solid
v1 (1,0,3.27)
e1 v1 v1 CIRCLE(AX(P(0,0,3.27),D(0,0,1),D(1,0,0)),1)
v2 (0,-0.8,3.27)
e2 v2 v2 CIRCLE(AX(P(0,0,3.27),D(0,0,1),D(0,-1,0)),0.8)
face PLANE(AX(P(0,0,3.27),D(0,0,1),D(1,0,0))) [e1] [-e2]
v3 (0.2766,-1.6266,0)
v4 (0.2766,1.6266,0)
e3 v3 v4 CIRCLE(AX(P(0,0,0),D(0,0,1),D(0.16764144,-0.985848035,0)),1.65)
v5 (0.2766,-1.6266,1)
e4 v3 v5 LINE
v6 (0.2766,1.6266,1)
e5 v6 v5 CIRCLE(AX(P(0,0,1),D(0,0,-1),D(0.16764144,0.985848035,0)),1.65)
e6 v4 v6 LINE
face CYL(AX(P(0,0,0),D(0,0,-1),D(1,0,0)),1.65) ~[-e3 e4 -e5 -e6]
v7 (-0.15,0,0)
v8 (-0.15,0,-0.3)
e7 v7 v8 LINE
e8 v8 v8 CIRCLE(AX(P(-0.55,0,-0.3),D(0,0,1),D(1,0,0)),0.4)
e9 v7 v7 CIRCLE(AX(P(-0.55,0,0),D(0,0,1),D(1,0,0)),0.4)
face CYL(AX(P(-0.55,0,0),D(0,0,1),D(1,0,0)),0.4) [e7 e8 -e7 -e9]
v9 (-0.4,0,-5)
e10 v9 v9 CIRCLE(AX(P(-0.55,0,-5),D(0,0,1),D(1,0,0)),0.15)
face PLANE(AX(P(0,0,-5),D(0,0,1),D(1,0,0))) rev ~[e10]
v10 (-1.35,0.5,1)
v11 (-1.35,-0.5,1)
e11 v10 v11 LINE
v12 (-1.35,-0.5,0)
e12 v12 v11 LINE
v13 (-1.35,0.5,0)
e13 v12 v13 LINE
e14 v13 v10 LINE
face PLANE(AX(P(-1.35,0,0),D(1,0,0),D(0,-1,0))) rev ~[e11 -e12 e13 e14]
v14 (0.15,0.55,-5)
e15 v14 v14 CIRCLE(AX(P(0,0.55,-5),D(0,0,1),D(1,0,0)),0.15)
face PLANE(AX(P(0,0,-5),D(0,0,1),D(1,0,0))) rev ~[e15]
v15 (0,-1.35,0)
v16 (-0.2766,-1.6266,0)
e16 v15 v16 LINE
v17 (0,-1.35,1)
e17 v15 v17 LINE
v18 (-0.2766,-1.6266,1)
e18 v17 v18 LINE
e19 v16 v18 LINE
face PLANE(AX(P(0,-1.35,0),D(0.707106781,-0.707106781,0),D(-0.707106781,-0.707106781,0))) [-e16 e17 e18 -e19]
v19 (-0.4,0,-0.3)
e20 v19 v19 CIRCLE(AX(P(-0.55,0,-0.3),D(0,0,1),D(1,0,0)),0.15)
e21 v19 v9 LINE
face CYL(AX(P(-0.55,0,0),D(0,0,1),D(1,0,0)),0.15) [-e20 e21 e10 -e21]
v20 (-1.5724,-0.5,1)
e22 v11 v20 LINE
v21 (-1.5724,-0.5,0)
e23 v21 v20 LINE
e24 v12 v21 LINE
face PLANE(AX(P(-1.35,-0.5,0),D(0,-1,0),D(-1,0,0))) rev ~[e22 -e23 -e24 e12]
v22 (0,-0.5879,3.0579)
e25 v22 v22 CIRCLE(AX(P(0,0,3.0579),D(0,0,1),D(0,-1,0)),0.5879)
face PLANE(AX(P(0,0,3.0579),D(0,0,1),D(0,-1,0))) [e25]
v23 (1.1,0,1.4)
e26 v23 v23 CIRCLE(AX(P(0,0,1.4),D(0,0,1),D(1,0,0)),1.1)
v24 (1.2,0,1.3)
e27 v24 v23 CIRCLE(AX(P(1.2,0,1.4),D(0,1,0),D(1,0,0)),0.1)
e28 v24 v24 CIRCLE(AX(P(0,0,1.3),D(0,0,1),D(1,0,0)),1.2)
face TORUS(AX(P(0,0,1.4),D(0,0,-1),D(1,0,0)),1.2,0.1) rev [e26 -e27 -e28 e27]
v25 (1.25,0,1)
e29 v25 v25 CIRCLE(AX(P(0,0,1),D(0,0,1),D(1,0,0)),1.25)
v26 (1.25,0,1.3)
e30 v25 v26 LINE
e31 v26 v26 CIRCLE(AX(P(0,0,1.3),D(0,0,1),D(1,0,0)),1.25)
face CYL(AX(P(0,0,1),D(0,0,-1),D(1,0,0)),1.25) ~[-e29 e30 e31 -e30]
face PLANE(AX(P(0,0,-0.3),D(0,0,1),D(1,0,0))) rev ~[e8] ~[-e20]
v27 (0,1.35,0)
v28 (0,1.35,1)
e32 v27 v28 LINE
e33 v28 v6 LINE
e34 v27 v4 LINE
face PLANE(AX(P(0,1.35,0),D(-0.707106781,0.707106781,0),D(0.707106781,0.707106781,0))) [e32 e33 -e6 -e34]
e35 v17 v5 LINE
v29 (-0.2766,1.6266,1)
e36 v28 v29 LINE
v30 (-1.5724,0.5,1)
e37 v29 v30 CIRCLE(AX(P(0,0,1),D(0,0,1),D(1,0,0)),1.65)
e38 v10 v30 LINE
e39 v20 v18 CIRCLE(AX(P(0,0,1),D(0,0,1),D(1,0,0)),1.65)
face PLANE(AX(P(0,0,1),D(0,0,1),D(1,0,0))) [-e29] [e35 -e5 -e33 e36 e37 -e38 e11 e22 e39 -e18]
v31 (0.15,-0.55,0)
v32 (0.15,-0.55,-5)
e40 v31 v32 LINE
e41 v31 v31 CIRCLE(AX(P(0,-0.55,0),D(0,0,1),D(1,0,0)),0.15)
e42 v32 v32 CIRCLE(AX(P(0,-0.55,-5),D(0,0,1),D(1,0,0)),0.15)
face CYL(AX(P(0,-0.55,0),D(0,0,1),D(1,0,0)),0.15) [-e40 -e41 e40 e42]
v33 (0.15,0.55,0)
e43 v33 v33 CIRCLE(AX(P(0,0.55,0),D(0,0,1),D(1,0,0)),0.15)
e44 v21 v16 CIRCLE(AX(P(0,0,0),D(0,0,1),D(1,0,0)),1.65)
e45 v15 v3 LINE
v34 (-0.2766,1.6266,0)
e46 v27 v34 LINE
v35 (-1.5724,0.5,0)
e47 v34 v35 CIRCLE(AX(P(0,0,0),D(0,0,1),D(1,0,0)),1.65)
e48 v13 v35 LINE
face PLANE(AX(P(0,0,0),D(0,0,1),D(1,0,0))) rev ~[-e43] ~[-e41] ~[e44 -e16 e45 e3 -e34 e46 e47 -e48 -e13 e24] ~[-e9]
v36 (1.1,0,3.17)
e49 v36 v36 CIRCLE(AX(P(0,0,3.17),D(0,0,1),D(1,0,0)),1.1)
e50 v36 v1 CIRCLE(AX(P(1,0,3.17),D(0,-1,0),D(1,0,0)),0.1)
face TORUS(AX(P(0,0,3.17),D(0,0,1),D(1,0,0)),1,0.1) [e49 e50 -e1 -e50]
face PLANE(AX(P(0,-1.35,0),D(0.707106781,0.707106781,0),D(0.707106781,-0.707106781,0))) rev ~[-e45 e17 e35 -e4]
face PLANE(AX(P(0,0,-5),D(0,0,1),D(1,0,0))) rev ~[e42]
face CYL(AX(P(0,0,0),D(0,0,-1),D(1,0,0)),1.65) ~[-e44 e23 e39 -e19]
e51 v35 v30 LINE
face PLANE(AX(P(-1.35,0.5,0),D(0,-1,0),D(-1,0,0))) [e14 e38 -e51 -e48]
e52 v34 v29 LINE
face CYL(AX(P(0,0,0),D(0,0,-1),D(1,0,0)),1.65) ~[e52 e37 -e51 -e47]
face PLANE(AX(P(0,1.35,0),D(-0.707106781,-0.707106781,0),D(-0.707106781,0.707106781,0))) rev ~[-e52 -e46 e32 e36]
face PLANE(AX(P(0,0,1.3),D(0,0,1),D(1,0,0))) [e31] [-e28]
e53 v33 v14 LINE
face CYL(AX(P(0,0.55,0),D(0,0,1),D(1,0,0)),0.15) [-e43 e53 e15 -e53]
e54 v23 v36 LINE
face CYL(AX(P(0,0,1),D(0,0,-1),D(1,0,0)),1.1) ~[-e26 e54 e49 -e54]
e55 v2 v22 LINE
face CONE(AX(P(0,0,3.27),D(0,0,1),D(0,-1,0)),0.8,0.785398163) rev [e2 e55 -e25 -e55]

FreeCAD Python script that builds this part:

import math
import FreeCAD as App
import Part
import Sketcher
Q = App.Units.Quantity


def edges_at(feature, points):
    """Names of the edges that pass closest to the given points."""
    edges = feature.Shape.Edges
    near = lambda p: min(range(len(edges)), key=lambda i: edges[i].distToShape(Part.Vertex(*p))[0])
    return sorted({f"Edge{near(p) + 1}" for p in points})


def add_polygon(sketch, points):
    """Adds a closed chain of lines whose ends are joined by coincident constraints."""
    first, n = sketch.GeometryCount, len(points)
    for a, b in zip(points, points[1:] + points[:1]):
        sketch.addGeometry(Part.LineSegment(App.Vector(*a, 0), App.Vector(*b, 0)), False)
    for i in range(n):
        sketch.addConstraint(Sketcher.Constraint("Coincident", first + i, 2, first + (i + 1) % n, 1))

doc = App.newDocument("Part")
body = doc.addObject("PartDesign::Body", "Body")

sketch1 = body.newObject("Sketcher::SketchObject", "Sketch")
sketch1.AttachmentSupport = (doc.getObject("XY_Plane"), [""])
sketch1.MapMode = "FlatFace"
sketch1.addGeometry([
    Part.ArcOfCircle(Part.Circle(App.Vector(0, 0, 0), App.Vector(0, 0, 1), 1.65), math.radians(-80.349284), math.radians(80.349284)),
    Part.LineSegment(App.Vector(0.2766, 1.6266, 0), App.Vector(0, 1.35, 0)),
    Part.LineSegment(App.Vector(0, 1.35, 0), App.Vector(-0.2766, 1.6266, 0)),
    Part.ArcOfCircle(Part.Circle(App.Vector(0, 0, 0), App.Vector(0, 0, 1), 1.65), math.radians(99.650716), math.radians(162.360104)),
    Part.LineSegment(App.Vector(-1.5724, 0.5, 0), App.Vector(-1.35, 0.5, 0)),
    Part.LineSegment(App.Vector(-1.35, 0.5, 0), App.Vector(-1.35, -0.5, 0)),
    Part.LineSegment(App.Vector(-1.35, -0.5, 0), App.Vector(-1.5724, -0.5, 0)),
    Part.ArcOfCircle(Part.Circle(App.Vector(0, 0, 0), App.Vector(0, 0, 1), 1.65), math.radians(-162.360104), math.radians(-99.650716)),
    Part.LineSegment(App.Vector(-0.2766, -1.6266, 0), App.Vector(0, -1.35, 0)),
    Part.LineSegment(App.Vector(0, -1.35, 0), App.Vector(0.2766, -1.6266, 0)),
], False)
sketch1.addConstraint([
    Sketcher.Constraint("Coincident", 0, 2, 1, 1),
    Sketcher.Constraint("Coincident", 1, 2, 2, 1),
    Sketcher.Constraint("Coincident", 2, 2, 3, 1),
    Sketcher.Constraint("Coincident", 3, 2, 4, 1),
    Sketcher.Constraint("Coincident", 4, 2, 5, 1),
    Sketcher.Constraint("Coincident", 5, 2, 6, 1),
    Sketcher.Constraint("Coincident", 6, 2, 7, 1),
    Sketcher.Constraint("Coincident", 7, 2, 8, 1),
    Sketcher.Constraint("Coincident", 8, 2, 9, 1),
    Sketcher.Constraint("Coincident", 9, 2, 0, 1),
    Sketcher.Constraint("Horizontal", 4),
    Sketcher.Constraint("Vertical", 5),
    Sketcher.Constraint("Horizontal", 6),
    Sketcher.Constraint("Coincident", 0, 3, -1, 1),
    Sketcher.Constraint("Coincident", 3, 3, -1, 1),
    Sketcher.Constraint("Coincident", 7, 3, -1, 1),
    Sketcher.Constraint("Equal", 0, 3),
    Sketcher.Constraint("Equal", 3, 7),
    Sketcher.Constraint("Symmetric", 1, 2, 8, 2, -1, 1),
    Sketcher.Constraint("PointOnObject", 1, 2, -2),
    Sketcher.Constraint("Perpendicular", 1, 2),
    Sketcher.Constraint("Perpendicular", 2, 8),
    Sketcher.Constraint("Perpendicular", 8, 9),
    Sketcher.Constraint("Horizontal", 0, 2, 2, 2),
    Sketcher.Constraint("Vertical", 3, 2, 6, 2),
    Sketcher.Constraint("Radius", 0, Q("1.65 mm")),
    Sketcher.Constraint("DistanceY", -1, 1, 3, 2, Q("0.5 mm")),
    Sketcher.Constraint("DistanceY", -1, 1, 1, 2, Q("1.35 mm")),
    Sketcher.Constraint("DistanceX", 4, 2, -1, 1, Q("1.35 mm")),
])
pad1 = body.newObject("PartDesign::Pad", "Pad")
pad1.Profile = sketch1
pad1.Length = 1

sketch2 = body.newObject("Sketcher::SketchObject", "Sketch001")
sketch2.AttachmentSupport = (doc.getObject("XY_Plane"), [""])
sketch2.MapMode = "FlatFace"
sketch2.addGeometry([
    Part.Circle(App.Vector(0, 0.55, 0), App.Vector(0, 0, 1), 0.15),
    Part.Circle(App.Vector(0, -0.55, 0), App.Vector(0, 0, 1), 0.15),
    Part.Circle(App.Vector(-0.55, 0, 0), App.Vector(0, 0, 1), 0.15),
], False)
sketch2.addConstraint([
    Sketcher.Constraint("Equal", 0, 1),
    Sketcher.Constraint("Equal", 1, 2),
    Sketcher.Constraint("Symmetric", 0, 3, 1, 3, -1, 1),
    Sketcher.Constraint("PointOnObject", 0, 3, -2),
    Sketcher.Constraint("PointOnObject", 2, 3, -1),
    Sketcher.Constraint("Diameter", 0, Q("0.3 mm")),
    Sketcher.Constraint("DistanceY", 1, 3, 0, 3, Q("1.1 mm")),
    Sketcher.Constraint("DistanceX", 2, 3, -1, 1, Q("0.55 mm")),
])
pad2 = body.newObject("PartDesign::Pad", "Pad001")
pad2.Profile = sketch2
pad2.Length = 5
pad2.Reversed = True

sketch3 = body.newObject("Sketcher::SketchObject", "Sketch002")
sketch3.AttachmentSupport = (doc.getObject("XY_Plane"), [""])
sketch3.MapMode = "FlatFace"
sketch3.addGeometry([
    Part.Circle(App.Vector(-0.55, 0, 0), App.Vector(0, 0, 1), 0.4),
    Part.Circle(App.Vector(-0.55, 0, 0), App.Vector(0, 0, 1), 0.15),
], False)
sketch3.addConstraint([
    Sketcher.Constraint("Coincident", 1, 3, 0, 3),
    Sketcher.Constraint("PointOnObject", 0, 3, -1),
    Sketcher.Constraint("Diameter", 0, Q("0.8 mm")),
    Sketcher.Constraint("Diameter", 1, Q("0.3 mm")),
    Sketcher.Constraint("DistanceX", 0, 3, -1, 1, Q("0.55 mm")),
])
pad3 = body.newObject("PartDesign::Pad", "Pad002")
pad3.Profile = sketch3
pad3.Length = 0.3
pad3.Reversed = True

sketch4 = body.newObject("Sketcher::SketchObject", "Sketch003")
sketch4.AttachmentSupport = (doc.getObject("XY_Plane"), [""])
sketch4.MapMode = "FlatFace"
sketch4.AttachmentOffset = App.Placement(App.Vector(0, 0, 1), App.Rotation())
sketch4.addGeometry(Part.Circle(App.Vector(0, 0, 0), App.Vector(0, 0, 1), 1.1), False)
sketch4.addConstraint([
    Sketcher.Constraint("Coincident", 0, 3, -1, 1),
    Sketcher.Constraint("Diameter", 0, Q("2.2 mm")),
])
pad4 = body.newObject("PartDesign::Pad", "Pad003")
pad4.Profile = sketch4
pad4.Length = 2.27

sketch5 = body.newObject("Sketcher::SketchObject", "Sketch004")
sketch5.AttachmentSupport = (doc.getObject("XY_Plane"), [""])
sketch5.MapMode = "FlatFace"
sketch5.AttachmentOffset = App.Placement(App.Vector(0, 0, 1), App.Rotation())
sketch5.addGeometry([
    Part.Circle(App.Vector(0, 0, 0), App.Vector(0, 0, 1), 1.25),
    Part.Circle(App.Vector(0, 0, 0), App.Vector(0, 0, 1), 1.1),
], False)
sketch5.addConstraint([
    Sketcher.Constraint("Coincident", 0, 3, -1, 1),
    Sketcher.Constraint("Coincident", 1, 3, -1, 1),
    Sketcher.Constraint("Diameter", 0, Q("2.5 mm")),
    Sketcher.Constraint("Diameter", 1, Q("2.2 mm")),
])
pad5 = body.newObject("PartDesign::Pad", "Pad004")
pad5.Profile = sketch5
pad5.Length = 0.3

sketch6 = body.newObject("Sketcher::SketchObject", "Sketch005")
sketch6.AttachmentSupport = (doc.getObject("YZ_Plane"), [""])
sketch6.MapMode = "FlatFace"
add_polygon(sketch6, [(0, 3.0579), (0, 3.27), (-0.8, 3.27), (-0.5879, 3.0579)])
sketch6.addConstraint([
    Sketcher.Constraint("Vertical", 0),
    Sketcher.Constraint("Horizontal", 1),
    Sketcher.Constraint("Horizontal", 3),
    Sketcher.Constraint("PointOnObject", 0, 2, -2),
    Sketcher.Constraint("Angle", 2, Q("-45 deg")),
    Sketcher.Constraint("DistanceX", 1, 2, 1, 1, Q("0.8 mm")),
    Sketcher.Constraint("Distance", 2, Q("0.3 mm")),
    Sketcher.Constraint("DistanceY", -1, 1, 0, 2, Q("3.27 mm")),
])
groove = body.newObject("PartDesign::Groove", "Groove")
groove.Profile = sketch6
groove.ReferenceAxis = (sketch6, ["V_Axis"])
groove.Angle = 360
doc.recompute()

fillet = body.newObject("PartDesign::Fillet", "Fillet")
fillet.Base = (groove, edges_at(groove, [(-1.1, 0, 3.27), (-1.1, 0, 1.3)]))
fillet.Radius = 0.1

doc.recompute()
